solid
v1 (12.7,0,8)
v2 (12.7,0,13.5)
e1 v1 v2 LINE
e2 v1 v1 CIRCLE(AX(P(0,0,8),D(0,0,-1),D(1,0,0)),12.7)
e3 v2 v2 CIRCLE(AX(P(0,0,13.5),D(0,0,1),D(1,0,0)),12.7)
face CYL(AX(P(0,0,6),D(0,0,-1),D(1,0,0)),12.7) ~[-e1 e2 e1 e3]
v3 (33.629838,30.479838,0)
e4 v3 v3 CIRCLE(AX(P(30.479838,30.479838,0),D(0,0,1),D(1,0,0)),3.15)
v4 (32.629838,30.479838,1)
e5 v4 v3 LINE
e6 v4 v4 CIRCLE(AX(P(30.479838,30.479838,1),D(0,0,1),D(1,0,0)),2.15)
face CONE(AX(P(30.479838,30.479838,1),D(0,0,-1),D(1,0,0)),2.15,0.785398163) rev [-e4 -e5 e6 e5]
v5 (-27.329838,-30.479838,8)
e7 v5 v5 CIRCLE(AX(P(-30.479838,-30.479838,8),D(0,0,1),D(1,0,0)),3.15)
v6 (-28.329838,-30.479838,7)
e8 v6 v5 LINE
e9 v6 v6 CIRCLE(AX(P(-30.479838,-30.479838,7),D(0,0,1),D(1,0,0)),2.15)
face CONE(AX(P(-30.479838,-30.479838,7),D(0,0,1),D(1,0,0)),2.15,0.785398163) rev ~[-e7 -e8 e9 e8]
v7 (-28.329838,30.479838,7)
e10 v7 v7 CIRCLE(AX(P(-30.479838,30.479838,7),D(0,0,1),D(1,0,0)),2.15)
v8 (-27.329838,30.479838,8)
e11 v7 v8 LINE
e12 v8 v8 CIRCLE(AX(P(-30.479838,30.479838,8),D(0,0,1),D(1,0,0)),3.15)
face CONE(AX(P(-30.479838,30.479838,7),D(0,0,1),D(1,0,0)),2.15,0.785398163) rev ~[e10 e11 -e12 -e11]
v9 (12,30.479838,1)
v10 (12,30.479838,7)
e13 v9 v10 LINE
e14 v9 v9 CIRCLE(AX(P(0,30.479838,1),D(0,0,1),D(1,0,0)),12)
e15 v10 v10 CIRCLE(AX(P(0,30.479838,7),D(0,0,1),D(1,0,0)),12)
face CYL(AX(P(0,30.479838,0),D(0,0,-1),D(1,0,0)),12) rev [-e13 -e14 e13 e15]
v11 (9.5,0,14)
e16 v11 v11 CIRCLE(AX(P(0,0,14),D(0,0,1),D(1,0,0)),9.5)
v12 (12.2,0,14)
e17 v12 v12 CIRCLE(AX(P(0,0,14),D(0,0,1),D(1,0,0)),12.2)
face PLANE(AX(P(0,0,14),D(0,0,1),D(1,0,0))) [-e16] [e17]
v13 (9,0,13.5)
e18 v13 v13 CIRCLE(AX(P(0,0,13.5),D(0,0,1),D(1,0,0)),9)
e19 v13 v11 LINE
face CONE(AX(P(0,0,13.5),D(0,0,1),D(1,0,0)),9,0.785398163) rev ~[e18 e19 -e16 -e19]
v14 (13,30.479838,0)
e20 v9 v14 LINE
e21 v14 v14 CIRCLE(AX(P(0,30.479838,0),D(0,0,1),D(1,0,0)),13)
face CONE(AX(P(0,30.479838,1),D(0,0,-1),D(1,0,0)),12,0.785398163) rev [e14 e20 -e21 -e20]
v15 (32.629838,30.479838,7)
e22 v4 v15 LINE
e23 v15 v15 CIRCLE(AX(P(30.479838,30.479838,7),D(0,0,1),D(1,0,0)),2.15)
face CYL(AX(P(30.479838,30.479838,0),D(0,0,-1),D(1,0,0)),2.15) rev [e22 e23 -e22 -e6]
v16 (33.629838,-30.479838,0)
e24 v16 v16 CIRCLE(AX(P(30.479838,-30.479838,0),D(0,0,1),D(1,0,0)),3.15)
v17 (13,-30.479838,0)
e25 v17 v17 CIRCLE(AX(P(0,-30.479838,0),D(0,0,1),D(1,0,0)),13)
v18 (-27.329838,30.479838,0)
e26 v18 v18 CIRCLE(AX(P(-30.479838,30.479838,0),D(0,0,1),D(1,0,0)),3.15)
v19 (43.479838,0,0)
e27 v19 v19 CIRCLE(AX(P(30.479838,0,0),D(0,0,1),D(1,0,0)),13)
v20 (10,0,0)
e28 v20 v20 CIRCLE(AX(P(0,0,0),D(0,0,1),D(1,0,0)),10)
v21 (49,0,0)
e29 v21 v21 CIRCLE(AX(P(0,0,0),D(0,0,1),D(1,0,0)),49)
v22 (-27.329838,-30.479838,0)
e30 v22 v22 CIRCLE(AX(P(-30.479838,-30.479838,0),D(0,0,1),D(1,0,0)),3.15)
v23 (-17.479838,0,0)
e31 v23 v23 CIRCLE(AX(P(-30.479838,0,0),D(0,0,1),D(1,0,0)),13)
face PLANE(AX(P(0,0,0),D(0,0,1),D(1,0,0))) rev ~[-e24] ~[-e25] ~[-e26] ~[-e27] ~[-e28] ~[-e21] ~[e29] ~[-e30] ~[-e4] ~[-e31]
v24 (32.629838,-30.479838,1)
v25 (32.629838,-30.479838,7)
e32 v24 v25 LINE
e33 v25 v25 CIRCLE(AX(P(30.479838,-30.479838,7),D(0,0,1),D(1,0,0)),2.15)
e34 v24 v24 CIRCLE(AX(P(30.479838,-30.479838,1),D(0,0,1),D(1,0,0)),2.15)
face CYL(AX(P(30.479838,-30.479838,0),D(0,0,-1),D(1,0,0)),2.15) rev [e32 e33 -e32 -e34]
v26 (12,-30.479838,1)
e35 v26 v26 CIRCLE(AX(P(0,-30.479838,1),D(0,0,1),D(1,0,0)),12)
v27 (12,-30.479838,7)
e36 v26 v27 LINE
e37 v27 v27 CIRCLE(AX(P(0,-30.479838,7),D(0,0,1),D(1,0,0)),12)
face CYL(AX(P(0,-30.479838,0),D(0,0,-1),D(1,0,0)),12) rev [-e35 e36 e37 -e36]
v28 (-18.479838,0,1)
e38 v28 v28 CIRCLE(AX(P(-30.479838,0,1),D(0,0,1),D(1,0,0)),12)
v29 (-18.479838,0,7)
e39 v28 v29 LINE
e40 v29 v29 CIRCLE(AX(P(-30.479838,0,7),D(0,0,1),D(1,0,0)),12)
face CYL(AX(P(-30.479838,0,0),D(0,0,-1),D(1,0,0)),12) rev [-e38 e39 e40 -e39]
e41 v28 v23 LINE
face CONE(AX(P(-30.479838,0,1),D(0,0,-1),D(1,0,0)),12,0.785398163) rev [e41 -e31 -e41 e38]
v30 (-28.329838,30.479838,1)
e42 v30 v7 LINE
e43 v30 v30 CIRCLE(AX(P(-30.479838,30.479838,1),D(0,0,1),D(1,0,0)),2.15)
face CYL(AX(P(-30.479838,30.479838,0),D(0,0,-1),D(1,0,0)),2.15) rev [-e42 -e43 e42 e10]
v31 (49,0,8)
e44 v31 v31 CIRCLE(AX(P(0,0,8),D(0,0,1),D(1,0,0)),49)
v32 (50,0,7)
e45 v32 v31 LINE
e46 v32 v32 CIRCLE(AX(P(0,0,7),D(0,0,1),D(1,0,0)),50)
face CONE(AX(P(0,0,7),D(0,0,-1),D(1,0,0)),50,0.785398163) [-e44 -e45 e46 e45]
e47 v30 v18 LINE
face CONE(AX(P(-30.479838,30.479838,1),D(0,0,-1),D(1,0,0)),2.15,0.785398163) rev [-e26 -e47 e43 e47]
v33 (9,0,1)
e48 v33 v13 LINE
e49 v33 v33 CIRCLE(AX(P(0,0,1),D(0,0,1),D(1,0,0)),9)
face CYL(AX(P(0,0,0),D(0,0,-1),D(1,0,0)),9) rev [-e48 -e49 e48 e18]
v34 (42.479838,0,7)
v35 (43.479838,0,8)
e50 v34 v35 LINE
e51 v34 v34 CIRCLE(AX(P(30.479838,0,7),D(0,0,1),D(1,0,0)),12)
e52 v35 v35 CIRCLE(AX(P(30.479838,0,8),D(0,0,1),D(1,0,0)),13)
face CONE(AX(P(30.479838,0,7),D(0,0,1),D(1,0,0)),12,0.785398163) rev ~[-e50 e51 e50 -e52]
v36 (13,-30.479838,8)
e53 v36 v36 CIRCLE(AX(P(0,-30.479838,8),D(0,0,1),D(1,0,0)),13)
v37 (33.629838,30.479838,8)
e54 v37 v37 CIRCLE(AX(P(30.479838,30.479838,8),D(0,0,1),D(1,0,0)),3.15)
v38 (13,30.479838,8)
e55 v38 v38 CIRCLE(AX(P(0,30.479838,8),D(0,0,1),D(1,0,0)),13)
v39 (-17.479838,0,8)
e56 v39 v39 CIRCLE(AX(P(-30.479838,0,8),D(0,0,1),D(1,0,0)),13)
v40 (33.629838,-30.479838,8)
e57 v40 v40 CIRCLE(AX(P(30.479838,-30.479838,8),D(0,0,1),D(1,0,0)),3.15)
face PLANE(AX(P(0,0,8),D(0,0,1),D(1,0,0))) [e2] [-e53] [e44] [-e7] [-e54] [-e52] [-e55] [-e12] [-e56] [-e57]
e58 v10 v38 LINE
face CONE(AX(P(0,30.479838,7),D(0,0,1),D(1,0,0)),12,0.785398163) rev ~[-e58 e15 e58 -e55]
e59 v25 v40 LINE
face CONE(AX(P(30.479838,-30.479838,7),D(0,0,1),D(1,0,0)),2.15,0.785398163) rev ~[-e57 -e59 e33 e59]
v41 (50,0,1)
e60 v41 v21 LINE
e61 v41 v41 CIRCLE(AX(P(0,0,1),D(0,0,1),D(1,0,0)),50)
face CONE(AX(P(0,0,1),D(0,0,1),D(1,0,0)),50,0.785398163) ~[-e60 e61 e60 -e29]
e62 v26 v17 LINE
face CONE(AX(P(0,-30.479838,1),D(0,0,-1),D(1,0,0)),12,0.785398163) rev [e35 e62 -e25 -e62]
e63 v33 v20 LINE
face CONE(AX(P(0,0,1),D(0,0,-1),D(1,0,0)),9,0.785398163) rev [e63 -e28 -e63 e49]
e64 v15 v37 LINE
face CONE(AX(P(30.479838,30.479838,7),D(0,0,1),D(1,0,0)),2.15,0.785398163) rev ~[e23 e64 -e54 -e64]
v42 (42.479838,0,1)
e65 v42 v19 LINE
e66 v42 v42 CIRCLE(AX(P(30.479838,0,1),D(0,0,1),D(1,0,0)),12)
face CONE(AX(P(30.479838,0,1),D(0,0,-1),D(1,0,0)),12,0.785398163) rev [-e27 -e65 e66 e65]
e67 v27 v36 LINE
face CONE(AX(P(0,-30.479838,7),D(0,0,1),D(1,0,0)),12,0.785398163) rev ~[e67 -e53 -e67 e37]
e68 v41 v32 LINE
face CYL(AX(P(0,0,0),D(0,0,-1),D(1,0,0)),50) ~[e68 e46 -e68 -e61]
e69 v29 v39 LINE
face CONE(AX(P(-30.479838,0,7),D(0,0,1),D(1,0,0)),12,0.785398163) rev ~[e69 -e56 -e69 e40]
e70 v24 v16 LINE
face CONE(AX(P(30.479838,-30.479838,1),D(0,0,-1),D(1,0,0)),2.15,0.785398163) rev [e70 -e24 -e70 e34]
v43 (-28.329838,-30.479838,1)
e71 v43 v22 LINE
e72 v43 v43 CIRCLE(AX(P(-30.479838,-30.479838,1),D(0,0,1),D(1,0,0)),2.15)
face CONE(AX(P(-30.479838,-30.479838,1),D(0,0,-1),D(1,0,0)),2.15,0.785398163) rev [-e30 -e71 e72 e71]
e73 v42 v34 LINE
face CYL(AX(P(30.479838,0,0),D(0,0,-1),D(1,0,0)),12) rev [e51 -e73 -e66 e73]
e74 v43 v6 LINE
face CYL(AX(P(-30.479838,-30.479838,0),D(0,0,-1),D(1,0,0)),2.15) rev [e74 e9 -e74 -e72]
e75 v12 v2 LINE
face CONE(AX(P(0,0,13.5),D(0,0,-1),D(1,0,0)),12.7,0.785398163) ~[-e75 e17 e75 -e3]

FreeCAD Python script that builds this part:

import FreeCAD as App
import Part
import Sketcher
from FreeCAD import Vector


def edges_at(feature, points):
    """Names of the edges that pass closest to the given points."""
    edges = feature.Shape.Edges
    near = lambda p: min(range(len(edges)), key=lambda i: edges[i].distToShape(Part.Vertex(*p))[0])
    return sorted({f"Edge{near(p) + 1}" for p in points})

doc = App.newDocument("Part")
body = doc.addObject("PartDesign::Body", "Body")

sketch1 = doc.addObject("Sketcher::SketchObject", "Sketch")
body.addObject(sketch1)
sketch1.AttachmentSupport = (doc.XY_Plane, [""])
sketch1.MapMode = "FlatFace"
sketch1.addGeometry([
    Part.Circle(Vector(0, 0, 0), Vector(0, 0, 1), 50),
    Part.Circle(Vector(-30.5, -30.5, 0), Vector(0, 0, 1), 2.1),
    Part.Circle(Vector(0, -30.5, 0), Vector(0, 0, 1), 12),
    Part.Circle(Vector(30.5, -30.5, 0), Vector(0, 0, 1), 2.1),
    Part.Circle(Vector(-30.5, 0, 0), Vector(0, 0, 1), 12),
    Part.Circle(Vector(-30.5, 30.5, 0), Vector(0, 0, 1), 2.1),
    Part.Circle(Vector(0, 0, 0), Vector(0, 0, 1), 9),
    Part.Circle(Vector(30.5, 0, 0), Vector(0, 0, 1), 12),
    Part.Circle(Vector(0, 30.5, 0), Vector(0, 0, 1), 12),
    Part.Circle(Vector(30.5, 30.5, 0), Vector(0, 0, 1), 2.1),
], False)
sketch1.addConstraint([
    Sketcher.Constraint("Coincident", 0, 3, -1, 1),
    Sketcher.Constraint("Coincident", 6, 3, -1, 1),
    Sketcher.Constraint("Equal", 1, 3),
    Sketcher.Constraint("Equal", 2, 4),
    Sketcher.Constraint("Equal", 3, 5),
    Sketcher.Constraint("Equal", 4, 7),
    Sketcher.Constraint("Equal", 7, 8),
    Sketcher.Constraint("Equal", 5, 9),
    Sketcher.Constraint("Symmetric", 3, 3, 5, 3, -1, 1),
    Sketcher.Constraint("Symmetric", 4, 3, 7, 3, -1, 1),
    Sketcher.Constraint("Symmetric", 2, 3, 8, 3, -1, 1),
    Sketcher.Constraint("Symmetric", 1, 3, 9, 3, -1, 1),
    Sketcher.Constraint("Symmetric", 1, 3, 3, 3, -2),
    Sketcher.Constraint("PointOnObject", 2, 3, -2),
    Sketcher.Constraint("PointOnObject", 4, 3, -1),
    Sketcher.Constraint("Horizontal", 1, 3, 2, 3),
    Sketcher.Constraint("Vertical", 1, 3, 4, 3),
    Sketcher.Constraint("Diameter", 0, 100.0),
    Sketcher.Constraint("Diameter", 2, 24.0),
    Sketcher.Constraint("Diameter", 6, 18.0),
    Sketcher.Constraint("Diameter", 1, 4.3),
    Sketcher.Constraint("DistanceX", 1, 3, -1, 1, 30.479838),
    Sketcher.Constraint("DistanceY", 1, 3, -1, 1, 30.479838),
])
pad1 = doc.addObject("PartDesign::Pad", "Pad")
body.addObject(pad1)
pad1.Profile = sketch1
pad1.Length = 8
doc.recompute()

chamfer = doc.addObject("PartDesign::Chamfer", "Chamfer")
body.addObject(chamfer)
chamfer.Base = (pad1, edges_at(pad1, [
    (-50, 0, 8),
    (-42.48, 0, 8),
    (-12, 30.48, 8),
    (18.48, 0, 8),
    (-12, -30.48, 8),
    (-9, 0, 8),
    (-32.63, -30.48, 8),
    (28.33, -30.48, 8),
    (28.33, 30.48, 8),
    (-32.63, 30.48, 8),
    (-50, 0, 0),
    (-42.48, 0, 0),
    (-12, 30.48, 0),
    (18.48, 0, 0),
    (-12, -30.48, 0),
    (-9, 0, 0),
    (-32.63, -30.48, 0),
    (28.33, -30.48, 0),
    (28.33, 30.48, 0),
    (-32.63, 30.48, 0),
]))
chamfer.Size = 1

sketch2 = doc.addObject("Sketcher::SketchObject", "Sketch001")
body.addObject(sketch2)
sketch2.AttachmentSupport = (doc.XY_Plane, [""])
sketch2.MapMode = "FlatFace"
sketch2.AttachmentOffset = App.Placement(Vector(0, 0, 6), App.Rotation())
sketch2.addGeometry([
    Part.Circle(Vector(0, 0, 0), Vector(0, 0, 1), 13),
    Part.Circle(Vector(0, 0, 0), Vector(0, 0, 1), 9),
], False)
sketch2.addConstraint([
    Sketcher.Constraint("Coincident", 0, 3, -1, 1),
    Sketcher.Constraint("Coincident", 1, 3, -1, 1),
    Sketcher.Constraint("Diameter", 1, 18.0),
    Sketcher.Constraint("Diameter", 0, 25.4),
])
pad2 = doc.addObject("PartDesign::Pad", "Pad001")
body.addObject(pad2)
pad2.Profile = sketch2
pad2.Length = 8
doc.recompute()

chamfer2 = doc.addObject("PartDesign::Chamfer", "Chamfer001")
body.addObject(chamfer2)
chamfer2.Base = (pad2, edges_at(pad2, [(-12.7, 0, 14), (-9, 0, 14)]))
chamfer2.Size = 0.5

doc.recompute()
